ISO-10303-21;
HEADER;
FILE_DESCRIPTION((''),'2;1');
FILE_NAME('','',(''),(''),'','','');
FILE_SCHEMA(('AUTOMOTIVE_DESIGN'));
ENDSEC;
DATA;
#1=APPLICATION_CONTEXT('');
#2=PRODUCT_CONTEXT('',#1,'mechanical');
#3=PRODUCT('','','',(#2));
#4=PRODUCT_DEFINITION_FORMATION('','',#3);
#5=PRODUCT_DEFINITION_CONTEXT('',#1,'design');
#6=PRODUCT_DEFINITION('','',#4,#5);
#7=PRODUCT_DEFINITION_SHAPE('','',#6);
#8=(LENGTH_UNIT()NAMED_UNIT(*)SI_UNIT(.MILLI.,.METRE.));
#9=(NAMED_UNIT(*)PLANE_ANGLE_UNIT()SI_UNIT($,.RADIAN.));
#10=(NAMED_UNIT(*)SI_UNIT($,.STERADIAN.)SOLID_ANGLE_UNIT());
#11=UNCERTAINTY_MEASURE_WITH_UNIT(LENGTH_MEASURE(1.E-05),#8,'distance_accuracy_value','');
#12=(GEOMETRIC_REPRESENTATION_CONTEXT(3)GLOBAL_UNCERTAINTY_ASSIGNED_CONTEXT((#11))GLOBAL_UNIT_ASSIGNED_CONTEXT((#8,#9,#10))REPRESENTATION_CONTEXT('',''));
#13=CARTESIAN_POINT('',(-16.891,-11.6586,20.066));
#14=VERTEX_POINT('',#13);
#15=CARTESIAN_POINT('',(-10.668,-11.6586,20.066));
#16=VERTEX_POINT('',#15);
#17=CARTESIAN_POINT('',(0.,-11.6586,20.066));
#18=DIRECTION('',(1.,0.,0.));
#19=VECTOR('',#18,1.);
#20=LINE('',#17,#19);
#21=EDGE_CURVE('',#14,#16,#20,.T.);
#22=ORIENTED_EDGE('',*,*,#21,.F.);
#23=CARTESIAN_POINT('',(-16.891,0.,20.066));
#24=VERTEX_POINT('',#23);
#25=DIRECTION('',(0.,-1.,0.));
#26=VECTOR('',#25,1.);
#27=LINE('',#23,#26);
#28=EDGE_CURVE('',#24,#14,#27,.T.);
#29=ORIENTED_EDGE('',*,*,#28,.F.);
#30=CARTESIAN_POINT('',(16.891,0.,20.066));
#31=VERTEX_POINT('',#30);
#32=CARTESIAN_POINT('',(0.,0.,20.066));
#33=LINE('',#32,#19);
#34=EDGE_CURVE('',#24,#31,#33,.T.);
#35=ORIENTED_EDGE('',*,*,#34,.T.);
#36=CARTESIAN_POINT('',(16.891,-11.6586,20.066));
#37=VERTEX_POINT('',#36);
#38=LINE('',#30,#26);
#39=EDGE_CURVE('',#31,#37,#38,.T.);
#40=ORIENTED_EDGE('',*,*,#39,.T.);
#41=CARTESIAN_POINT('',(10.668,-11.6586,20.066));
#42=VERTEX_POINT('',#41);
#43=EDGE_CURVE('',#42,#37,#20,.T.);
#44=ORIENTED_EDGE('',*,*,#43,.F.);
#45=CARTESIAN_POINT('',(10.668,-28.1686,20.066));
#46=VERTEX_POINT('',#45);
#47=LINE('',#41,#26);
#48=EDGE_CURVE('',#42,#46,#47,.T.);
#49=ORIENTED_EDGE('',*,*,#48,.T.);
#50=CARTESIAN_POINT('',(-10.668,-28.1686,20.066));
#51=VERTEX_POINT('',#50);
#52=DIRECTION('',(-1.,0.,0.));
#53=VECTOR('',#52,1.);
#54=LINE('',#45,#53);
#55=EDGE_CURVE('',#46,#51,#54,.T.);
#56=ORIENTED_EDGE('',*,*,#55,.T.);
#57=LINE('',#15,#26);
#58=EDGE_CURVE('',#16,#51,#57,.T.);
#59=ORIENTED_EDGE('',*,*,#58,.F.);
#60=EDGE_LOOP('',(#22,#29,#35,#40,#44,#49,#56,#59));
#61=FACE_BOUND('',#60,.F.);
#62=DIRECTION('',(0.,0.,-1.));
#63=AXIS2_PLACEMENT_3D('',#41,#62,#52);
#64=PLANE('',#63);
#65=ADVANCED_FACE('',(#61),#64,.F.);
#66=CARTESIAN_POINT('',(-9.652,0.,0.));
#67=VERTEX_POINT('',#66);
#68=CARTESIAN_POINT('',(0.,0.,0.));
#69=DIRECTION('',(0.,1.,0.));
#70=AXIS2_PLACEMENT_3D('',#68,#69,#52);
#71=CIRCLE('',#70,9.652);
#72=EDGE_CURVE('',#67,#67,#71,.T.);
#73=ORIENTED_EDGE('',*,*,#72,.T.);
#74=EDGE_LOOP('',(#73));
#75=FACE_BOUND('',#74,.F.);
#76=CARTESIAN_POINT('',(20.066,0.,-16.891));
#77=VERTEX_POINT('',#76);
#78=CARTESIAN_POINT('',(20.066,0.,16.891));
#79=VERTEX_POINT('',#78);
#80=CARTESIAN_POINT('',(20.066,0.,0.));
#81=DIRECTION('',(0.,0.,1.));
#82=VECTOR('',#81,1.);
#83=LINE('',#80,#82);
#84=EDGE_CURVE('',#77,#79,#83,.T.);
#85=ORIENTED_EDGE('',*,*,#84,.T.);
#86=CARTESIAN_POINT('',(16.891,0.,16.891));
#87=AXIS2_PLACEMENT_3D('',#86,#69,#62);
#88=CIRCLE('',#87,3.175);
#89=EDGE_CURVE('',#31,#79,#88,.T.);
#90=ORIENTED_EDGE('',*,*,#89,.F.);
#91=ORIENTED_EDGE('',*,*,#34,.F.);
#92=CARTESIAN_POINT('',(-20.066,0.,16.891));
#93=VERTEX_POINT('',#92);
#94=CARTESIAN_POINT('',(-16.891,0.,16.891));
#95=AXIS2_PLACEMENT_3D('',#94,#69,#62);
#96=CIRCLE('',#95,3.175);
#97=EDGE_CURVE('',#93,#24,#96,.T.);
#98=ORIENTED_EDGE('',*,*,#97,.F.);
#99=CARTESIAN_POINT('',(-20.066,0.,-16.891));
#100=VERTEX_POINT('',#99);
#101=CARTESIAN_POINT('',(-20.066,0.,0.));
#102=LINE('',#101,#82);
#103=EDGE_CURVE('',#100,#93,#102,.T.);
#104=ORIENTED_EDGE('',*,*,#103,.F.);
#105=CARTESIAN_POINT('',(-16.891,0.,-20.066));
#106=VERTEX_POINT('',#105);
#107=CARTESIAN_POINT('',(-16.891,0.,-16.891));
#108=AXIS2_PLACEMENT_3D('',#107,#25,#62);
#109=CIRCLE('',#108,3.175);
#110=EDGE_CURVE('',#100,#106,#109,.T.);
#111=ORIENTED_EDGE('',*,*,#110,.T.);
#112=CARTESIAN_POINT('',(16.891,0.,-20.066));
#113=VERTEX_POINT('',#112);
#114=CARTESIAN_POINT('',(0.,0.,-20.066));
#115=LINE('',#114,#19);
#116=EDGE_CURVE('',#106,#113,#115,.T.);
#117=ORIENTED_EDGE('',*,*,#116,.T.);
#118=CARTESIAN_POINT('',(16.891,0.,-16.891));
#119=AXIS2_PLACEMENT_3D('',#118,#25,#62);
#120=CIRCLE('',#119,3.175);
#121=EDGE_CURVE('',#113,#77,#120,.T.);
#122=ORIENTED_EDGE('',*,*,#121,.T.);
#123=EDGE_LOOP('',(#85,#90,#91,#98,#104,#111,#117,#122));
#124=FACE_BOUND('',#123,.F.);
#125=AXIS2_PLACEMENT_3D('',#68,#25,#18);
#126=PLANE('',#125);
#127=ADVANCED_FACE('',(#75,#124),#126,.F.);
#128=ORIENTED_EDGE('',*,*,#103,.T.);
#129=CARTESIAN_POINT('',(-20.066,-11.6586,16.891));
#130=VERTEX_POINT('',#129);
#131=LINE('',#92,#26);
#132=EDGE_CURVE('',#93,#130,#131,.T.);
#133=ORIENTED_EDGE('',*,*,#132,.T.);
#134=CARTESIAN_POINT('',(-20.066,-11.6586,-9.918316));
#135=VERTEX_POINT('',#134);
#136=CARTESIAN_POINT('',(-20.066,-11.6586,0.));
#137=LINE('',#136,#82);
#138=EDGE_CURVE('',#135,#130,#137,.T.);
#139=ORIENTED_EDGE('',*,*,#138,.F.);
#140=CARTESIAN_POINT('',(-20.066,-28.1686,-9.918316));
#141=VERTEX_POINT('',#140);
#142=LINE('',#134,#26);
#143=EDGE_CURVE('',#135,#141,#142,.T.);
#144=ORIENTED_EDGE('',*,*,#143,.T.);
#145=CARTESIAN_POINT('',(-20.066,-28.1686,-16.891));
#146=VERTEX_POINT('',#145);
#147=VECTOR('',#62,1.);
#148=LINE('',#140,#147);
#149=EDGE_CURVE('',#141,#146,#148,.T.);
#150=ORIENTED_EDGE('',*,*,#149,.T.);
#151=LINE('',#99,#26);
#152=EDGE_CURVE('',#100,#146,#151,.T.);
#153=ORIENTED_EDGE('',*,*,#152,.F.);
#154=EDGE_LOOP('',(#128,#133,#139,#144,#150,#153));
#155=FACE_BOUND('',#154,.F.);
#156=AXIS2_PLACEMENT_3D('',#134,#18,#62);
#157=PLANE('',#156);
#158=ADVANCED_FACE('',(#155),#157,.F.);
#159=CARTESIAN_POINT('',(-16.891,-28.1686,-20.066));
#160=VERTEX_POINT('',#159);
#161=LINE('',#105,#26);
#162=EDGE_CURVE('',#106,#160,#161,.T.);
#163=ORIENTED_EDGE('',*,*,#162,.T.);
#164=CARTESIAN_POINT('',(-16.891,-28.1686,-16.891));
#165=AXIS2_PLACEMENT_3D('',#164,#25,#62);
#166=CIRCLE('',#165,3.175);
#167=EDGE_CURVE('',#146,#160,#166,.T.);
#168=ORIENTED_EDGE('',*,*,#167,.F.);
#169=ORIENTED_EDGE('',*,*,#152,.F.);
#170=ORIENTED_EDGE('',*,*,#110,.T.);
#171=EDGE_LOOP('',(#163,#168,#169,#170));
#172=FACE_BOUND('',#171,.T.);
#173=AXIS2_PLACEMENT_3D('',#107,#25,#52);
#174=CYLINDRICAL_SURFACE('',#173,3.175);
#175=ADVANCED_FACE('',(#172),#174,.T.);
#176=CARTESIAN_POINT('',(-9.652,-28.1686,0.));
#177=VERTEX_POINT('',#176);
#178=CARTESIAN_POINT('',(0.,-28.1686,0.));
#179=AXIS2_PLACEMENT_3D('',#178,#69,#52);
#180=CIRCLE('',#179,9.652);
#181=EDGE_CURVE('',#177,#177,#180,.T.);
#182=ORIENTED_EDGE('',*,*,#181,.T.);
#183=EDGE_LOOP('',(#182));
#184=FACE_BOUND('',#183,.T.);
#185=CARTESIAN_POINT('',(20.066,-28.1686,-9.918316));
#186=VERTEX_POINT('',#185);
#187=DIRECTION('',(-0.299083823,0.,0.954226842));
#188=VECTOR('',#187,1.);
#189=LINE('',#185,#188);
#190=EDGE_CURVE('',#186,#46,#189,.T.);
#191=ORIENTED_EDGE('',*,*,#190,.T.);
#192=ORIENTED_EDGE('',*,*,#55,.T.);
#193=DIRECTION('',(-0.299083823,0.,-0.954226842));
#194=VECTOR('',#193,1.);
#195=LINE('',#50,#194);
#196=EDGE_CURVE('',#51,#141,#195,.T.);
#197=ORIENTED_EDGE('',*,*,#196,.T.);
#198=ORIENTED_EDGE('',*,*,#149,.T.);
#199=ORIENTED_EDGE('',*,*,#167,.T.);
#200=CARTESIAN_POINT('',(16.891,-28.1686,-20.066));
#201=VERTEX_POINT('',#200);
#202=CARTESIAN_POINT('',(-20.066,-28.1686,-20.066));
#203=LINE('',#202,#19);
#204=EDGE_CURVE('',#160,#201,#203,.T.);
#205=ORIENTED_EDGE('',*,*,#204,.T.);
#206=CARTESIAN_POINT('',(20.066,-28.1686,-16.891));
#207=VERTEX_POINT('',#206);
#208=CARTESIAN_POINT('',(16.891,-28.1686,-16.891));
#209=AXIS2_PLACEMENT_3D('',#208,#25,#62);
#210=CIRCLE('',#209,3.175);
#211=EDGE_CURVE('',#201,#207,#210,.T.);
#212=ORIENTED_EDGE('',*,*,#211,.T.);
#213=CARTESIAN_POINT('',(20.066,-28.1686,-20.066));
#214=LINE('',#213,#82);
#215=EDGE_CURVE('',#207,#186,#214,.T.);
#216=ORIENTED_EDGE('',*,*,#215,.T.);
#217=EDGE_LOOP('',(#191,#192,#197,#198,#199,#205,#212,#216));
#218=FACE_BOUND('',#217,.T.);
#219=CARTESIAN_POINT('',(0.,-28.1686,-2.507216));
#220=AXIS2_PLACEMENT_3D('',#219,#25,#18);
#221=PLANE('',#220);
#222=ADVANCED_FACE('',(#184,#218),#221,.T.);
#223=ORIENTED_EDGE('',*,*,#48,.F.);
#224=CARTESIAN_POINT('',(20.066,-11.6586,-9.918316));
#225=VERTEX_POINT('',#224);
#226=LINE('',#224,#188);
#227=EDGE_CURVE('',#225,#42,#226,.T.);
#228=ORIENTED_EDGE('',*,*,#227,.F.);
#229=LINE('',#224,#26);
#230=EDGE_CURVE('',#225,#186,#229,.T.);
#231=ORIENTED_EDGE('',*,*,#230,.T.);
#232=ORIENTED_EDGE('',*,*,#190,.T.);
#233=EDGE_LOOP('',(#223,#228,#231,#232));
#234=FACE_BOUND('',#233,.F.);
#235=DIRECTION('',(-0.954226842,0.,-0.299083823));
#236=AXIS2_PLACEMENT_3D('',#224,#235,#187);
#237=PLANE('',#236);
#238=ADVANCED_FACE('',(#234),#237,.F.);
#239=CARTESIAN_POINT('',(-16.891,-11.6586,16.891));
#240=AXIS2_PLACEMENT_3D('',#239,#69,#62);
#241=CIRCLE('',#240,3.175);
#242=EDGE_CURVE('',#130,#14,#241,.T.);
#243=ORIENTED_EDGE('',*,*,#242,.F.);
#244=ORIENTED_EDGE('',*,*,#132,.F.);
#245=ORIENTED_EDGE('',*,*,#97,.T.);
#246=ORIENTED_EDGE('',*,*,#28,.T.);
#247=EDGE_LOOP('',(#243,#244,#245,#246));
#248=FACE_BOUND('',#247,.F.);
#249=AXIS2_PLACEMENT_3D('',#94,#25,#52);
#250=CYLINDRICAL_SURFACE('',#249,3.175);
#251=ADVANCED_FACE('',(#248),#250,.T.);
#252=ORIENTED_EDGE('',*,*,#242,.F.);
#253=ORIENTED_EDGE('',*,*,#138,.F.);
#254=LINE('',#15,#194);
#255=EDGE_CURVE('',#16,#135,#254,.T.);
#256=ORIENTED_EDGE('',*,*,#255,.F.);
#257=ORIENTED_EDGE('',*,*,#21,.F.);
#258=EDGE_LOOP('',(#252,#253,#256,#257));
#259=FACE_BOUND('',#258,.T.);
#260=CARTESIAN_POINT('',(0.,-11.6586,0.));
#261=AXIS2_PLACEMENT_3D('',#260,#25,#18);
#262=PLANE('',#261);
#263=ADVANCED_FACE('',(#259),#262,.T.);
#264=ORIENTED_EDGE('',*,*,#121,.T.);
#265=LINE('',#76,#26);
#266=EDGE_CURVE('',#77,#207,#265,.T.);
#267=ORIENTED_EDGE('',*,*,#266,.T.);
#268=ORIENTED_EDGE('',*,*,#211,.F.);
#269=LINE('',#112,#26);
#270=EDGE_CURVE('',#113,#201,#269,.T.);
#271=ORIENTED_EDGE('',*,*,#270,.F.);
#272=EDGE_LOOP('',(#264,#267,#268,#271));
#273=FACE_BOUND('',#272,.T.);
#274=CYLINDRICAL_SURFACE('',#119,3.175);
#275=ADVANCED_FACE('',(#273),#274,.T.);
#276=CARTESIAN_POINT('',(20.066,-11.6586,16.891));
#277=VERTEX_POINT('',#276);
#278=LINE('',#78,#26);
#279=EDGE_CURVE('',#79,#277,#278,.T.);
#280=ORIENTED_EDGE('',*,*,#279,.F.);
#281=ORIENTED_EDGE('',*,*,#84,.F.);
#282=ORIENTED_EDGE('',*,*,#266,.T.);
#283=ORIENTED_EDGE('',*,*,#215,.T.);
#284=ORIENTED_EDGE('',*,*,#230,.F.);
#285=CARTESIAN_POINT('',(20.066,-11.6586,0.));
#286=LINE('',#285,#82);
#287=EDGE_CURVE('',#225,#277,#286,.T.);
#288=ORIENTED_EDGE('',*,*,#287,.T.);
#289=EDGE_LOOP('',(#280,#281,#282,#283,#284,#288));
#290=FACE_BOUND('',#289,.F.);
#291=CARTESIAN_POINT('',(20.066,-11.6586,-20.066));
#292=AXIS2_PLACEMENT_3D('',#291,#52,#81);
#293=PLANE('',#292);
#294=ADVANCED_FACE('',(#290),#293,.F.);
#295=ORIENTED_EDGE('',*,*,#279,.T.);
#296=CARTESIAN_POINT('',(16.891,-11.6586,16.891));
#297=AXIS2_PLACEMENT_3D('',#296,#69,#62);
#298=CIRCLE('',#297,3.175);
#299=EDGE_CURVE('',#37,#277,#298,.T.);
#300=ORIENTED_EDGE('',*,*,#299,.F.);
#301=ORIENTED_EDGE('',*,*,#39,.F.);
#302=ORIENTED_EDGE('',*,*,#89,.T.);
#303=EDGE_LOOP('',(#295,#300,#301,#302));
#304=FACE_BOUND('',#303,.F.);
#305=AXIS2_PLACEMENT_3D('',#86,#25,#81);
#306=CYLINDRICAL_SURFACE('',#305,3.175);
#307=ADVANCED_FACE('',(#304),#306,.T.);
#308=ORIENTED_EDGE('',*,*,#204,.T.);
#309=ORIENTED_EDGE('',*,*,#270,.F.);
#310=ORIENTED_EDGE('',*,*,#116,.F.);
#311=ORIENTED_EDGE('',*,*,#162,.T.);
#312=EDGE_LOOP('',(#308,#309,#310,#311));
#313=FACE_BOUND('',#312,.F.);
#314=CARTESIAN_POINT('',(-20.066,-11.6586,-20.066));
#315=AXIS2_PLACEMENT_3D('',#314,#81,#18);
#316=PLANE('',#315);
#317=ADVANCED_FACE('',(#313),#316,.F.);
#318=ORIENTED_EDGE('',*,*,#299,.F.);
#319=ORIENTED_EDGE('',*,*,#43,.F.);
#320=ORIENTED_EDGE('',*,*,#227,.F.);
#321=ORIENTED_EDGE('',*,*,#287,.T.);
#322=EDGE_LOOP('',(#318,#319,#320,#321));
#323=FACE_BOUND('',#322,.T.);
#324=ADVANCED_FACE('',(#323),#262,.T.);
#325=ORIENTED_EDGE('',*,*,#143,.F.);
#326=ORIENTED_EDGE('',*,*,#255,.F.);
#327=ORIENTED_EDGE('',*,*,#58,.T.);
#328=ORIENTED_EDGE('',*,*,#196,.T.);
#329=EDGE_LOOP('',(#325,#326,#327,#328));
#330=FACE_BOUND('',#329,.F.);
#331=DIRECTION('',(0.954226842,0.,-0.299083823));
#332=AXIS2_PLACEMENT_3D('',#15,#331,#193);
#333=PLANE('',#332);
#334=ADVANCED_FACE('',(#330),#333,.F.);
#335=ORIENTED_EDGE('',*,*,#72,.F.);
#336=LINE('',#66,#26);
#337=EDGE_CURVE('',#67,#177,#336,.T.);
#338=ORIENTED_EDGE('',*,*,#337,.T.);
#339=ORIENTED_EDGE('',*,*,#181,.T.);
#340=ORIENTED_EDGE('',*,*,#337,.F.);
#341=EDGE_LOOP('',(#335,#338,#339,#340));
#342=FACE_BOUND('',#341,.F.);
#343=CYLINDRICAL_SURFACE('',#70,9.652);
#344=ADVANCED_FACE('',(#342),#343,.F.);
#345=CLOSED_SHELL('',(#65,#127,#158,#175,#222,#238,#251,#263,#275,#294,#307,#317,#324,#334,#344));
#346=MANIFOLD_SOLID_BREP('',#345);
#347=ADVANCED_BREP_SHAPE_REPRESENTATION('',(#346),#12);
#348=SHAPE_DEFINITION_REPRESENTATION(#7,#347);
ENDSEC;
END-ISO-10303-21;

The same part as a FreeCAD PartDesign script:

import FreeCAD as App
import Part
import Sketcher
Q = App.Units.Quantity


def edges_at(feature, points):
    """Names of the edges that pass closest to the given points."""
    edges = feature.Shape.Edges
    near = lambda p: min(range(len(edges)), key=lambda i: edges[i].distToShape(Part.Vertex(*p))[0])
    return sorted({f"Edge{near(p) + 1}" for p in points})


def add_polygon(sketch, points):
    """Adds a closed chain of lines whose ends are joined by coincident constraints."""
    first, n = sketch.GeometryCount, len(points)
    for a, b in zip(points, points[1:] + points[:1]):
        sketch.addGeometry(Part.LineSegment(App.Vector(*a, 0), App.Vector(*b, 0)), False)
    for i in range(n):
        sketch.addConstraint(Sketcher.Constraint("Coincident", first + i, 2, first + (i + 1) % n, 1))

doc = App.newDocument("Part")
body = doc.addObject("PartDesign::Body", "Body")

sketch1 = body.newObject("Sketcher::SketchObject", "Sketch")
sketch1.AttachmentSupport = (doc.getObject("XZ_Plane"), [""])
sketch1.MapMode = "FlatFace"
add_polygon(sketch1, [(-20, 20), (-20, -20), (20, -20), (20, 20)])
sketch1.addConstraint([
    Sketcher.Constraint("Vertical", 0),
    Sketcher.Constraint("Horizontal", 1),
    Sketcher.Constraint("Vertical", 2),
    Sketcher.Constraint("Horizontal", 3),
    Sketcher.Constraint("Symmetric", 0, 2, 2, 2, -1, 1),
    Sketcher.Constraint("Equal", 3, 0),
    Sketcher.Constraint("DistanceX", 1, 1, 1, 2, Q("1.58 in")),
])
pad1 = body.newObject("PartDesign::Pad", "Pad")
pad1.Profile = sketch1
pad1.Length = Q("0.459 in")

sketch2 = body.newObject("Sketcher::SketchObject", "Sketch001")
sketch2.AttachmentSupport = (doc.getObject("XZ_Plane"), [""])
sketch2.MapMode = "FlatFace"
sketch2.AttachmentOffset = App.Placement(App.Vector(0, 0, 0.459 * 25.4), App.Rotation())
add_polygon(sketch2, [(-20, -10), (-20, -20), (20, -20), (20, -10), (11, 20), (-11, 20)])
sketch2.addConstraint([
    Sketcher.Constraint("Vertical", 0),
    Sketcher.Constraint("Horizontal", 1),
    Sketcher.Constraint("Vertical", 2),
    Sketcher.Constraint("Horizontal", 4),
    Sketcher.Constraint("Symmetric", 2, 2, 5, 2, -2),
    Sketcher.Constraint("Equal", 3, 5),
    Sketcher.Constraint("DistanceX", 1, 1, 1, 2, Q("1.58 in")),
    Sketcher.Constraint("DistanceX", 4, 2, 4, 1, Q("0.84 in")),
    Sketcher.Constraint("DistanceY", 0, 2, -1, 1, Q("0.79 in")),
    Sketcher.Constraint("DistanceY", -1, 1, 3, 2, Q("0.79 in")),
    Sketcher.Constraint("Distance", 3, Q("31.422629 mm")),
])
pad2 = body.newObject("PartDesign::Pad", "Pad001")
pad2.Profile = sketch2
pad2.Length = Q("0.65 in")

sketch3 = body.newObject("Sketcher::SketchObject", "Sketch002")
sketch3.AttachmentSupport = (doc.getObject("XZ_Plane"), [""])
sketch3.MapMode = "FlatFace"
sketch3.addGeometry(Part.Circle(App.Vector(0, 0, 0), App.Vector(0, 0, 1), 10), False)
sketch3.addConstraint([
    Sketcher.Constraint("Coincident", 0, 3, -1, 1),
    Sketcher.Constraint("Diameter", 0, Q("0.76 in")),
])
pocket1 = body.newObject("PartDesign::Pocket", "Pocket")
pocket1.Profile = sketch3
pocket1.Length = Q("1.2 in")
pocket1.Reversed = True
doc.recompute()

fillet = body.newObject("PartDesign::Fillet", "Fillet")
fillet.Base = (pocket1, edges_at(pocket1, [(-20.066, -5.829, 20.066)]))
fillet.Radius = Q("0.125 in")
doc.recompute()

fillet2 = body.newObject("PartDesign::Fillet", "Fillet001")
fillet2.Base = (fillet, edges_at(fillet, [(-20.066, -14.084, -20.066)]))
fillet2.Radius = Q("0.125 in")
doc.recompute()

fillet3 = body.newObject("PartDesign::Fillet", "Fillet002")
fillet3.Base = (fillet2, edges_at(fillet2, [(20.066, -5.829, 20.066), (20.066, -14.084, -20.066)]))
fillet3.Radius = Q("0.125 in")

doc.recompute()
